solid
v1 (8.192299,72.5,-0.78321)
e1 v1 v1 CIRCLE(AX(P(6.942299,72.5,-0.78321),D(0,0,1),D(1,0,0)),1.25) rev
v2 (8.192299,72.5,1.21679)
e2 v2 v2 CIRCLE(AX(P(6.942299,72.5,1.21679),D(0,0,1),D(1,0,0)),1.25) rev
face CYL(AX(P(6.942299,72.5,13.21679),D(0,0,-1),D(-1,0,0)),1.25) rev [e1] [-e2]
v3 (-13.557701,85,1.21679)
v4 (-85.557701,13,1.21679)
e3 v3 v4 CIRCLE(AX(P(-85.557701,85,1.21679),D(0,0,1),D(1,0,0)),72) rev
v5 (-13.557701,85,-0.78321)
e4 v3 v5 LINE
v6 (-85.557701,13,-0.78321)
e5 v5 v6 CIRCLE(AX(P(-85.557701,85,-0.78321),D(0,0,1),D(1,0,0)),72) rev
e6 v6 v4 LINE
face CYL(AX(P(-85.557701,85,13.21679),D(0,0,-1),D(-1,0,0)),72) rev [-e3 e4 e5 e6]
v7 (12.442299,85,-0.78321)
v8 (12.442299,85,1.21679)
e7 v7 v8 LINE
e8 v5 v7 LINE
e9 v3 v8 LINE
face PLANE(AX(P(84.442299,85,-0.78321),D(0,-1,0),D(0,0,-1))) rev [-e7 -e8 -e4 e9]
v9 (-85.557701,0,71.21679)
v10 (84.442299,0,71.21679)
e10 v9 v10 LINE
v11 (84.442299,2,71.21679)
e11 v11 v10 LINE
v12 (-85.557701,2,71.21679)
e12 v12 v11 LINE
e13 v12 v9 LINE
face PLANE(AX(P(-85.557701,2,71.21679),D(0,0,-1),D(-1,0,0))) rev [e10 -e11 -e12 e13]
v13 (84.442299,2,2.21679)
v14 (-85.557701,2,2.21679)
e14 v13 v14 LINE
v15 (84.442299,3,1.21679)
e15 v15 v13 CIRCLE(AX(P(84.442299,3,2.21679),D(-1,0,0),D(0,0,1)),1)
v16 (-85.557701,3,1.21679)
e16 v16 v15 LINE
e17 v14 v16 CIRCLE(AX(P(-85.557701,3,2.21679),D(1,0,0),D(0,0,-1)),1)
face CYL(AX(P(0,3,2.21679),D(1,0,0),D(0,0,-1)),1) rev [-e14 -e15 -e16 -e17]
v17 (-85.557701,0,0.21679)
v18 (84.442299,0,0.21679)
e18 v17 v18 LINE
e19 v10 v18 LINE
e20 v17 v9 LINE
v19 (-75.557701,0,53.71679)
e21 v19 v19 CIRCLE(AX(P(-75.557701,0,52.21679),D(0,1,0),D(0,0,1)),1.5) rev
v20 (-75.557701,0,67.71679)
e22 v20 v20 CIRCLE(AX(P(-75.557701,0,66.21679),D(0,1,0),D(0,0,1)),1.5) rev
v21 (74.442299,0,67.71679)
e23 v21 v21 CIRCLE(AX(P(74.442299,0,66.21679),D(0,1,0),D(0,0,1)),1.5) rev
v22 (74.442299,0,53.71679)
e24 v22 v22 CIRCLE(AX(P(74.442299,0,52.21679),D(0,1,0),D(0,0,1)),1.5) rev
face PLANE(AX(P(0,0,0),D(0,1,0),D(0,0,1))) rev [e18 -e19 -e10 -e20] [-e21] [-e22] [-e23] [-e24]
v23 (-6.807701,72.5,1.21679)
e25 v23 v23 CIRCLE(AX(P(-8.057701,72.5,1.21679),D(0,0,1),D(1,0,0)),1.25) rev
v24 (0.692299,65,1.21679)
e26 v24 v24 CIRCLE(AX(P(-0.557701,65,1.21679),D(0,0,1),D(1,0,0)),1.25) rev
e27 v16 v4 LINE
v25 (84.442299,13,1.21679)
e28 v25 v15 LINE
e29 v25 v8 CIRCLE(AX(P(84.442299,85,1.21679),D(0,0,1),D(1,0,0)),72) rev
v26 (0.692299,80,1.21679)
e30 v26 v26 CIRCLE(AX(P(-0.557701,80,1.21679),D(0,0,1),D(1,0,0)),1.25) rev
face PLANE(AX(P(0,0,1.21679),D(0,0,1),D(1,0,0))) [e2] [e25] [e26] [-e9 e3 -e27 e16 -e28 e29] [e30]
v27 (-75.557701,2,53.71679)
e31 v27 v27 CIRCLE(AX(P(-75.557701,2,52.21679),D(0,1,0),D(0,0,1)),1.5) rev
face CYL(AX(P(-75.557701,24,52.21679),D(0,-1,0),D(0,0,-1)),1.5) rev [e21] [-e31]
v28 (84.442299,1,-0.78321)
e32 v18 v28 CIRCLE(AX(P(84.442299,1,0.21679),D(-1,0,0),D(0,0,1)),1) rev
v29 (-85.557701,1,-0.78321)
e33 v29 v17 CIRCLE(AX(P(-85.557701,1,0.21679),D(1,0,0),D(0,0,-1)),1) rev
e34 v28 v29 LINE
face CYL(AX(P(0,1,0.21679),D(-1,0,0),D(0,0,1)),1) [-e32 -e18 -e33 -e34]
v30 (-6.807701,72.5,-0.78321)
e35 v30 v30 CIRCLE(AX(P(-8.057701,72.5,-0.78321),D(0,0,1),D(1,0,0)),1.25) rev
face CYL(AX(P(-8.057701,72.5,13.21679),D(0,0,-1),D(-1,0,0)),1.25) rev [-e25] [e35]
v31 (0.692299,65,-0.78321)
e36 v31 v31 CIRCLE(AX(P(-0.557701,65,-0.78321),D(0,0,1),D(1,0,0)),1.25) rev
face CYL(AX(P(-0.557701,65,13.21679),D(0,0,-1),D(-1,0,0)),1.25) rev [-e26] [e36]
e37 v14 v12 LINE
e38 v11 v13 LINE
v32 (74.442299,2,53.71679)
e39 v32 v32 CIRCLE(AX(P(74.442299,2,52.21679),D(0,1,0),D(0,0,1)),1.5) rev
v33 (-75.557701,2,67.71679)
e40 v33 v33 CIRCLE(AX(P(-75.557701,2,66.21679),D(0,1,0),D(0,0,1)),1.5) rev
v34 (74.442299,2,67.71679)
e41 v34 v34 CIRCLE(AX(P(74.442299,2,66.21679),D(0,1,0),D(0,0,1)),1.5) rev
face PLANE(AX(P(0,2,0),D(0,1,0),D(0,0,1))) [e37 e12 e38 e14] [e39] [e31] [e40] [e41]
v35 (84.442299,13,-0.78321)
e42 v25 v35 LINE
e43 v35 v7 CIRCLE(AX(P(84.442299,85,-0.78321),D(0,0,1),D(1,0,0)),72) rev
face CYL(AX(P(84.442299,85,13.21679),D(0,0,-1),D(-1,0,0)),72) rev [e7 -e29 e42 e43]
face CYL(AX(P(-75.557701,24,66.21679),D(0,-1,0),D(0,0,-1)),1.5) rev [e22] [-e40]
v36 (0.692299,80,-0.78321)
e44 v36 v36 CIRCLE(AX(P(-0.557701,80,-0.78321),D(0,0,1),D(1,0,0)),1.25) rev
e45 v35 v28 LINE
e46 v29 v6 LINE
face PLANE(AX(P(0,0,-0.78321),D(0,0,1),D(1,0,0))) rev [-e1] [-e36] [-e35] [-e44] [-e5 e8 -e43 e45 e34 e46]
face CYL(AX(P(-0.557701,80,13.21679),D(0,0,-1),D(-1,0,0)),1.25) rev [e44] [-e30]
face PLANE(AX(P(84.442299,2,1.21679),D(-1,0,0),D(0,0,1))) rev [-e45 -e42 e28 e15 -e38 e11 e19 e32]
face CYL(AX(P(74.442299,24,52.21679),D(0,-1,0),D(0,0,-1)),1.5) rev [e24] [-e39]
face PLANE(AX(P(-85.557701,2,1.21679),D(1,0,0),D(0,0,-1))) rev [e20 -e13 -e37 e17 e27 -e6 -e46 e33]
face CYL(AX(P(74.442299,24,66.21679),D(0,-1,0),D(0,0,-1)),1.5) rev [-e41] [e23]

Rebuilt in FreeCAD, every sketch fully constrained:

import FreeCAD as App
import Part
import Sketcher

V = App.Vector


def edges_at(feature, points):
    """Names of the edges that pass closest to the given points."""
    edges = feature.Shape.Edges
    near = lambda p: min(range(len(edges)), key=lambda i: edges[i].distToShape(Part.Vertex(*p))[0])
    return sorted({f"Edge{near(p) + 1}" for p in points})


def add_polygon(sketch, points):
    """Adds a closed chain of lines whose ends are joined by coincident constraints."""
    first, n = sketch.GeometryCount, len(points)
    for a, b in zip(points, points[1:] + points[:1]):
        sketch.addGeometry(Part.LineSegment(App.Vector(*a, 0), App.Vector(*b, 0)), False)
    for i in range(n):
        sketch.addConstraint(Sketcher.Constraint("Coincident", first + i, 2, first + (i + 1) % n, 1))

doc = App.newDocument("Part")
body = doc.addObject("PartDesign::Body", "Body")

# Sketch on XZ plane
sketch1 = doc.addObject("Sketcher::SketchObject", "Sketch")
body.addObject(sketch1)
sketch1.AttachmentSupport = (doc.XZ_Plane, [""])
sketch1.MapMode = "FlatFace"
add_polygon(sketch1, [(-86, 1), (-86, 71), (84, 71), (84, 1)])  # lines 0-3
sketch1.addConstraint([
    Sketcher.Constraint("Vertical", 0),
    Sketcher.Constraint("Horizontal", 1),
    Sketcher.Constraint("Vertical", 2),
    Sketcher.Constraint("Horizontal", 3),
    Sketcher.Constraint("DistanceX", 1, 1, 1, 2, 170.0),
    Sketcher.Constraint("DistanceY", 0, 1, 0, 2, 70.0),
    Sketcher.Constraint("DistanceX", 0, 2, -1, 1, 85.557701),
    Sketcher.Constraint("DistanceY", -1, 1, 0, 2, 71.21679),
])
pad1 = doc.addObject("PartDesign::Pad", "Pad")
body.addObject(pad1)
pad1.Profile = sketch1
pad1.Length = 2
pad1.Reversed = True

# Sketch on XZ plane
sketch2 = doc.addObject("Sketcher::SketchObject", "Sketch001")
body.addObject(sketch2)
sketch2.AttachmentSupport = (doc.XZ_Plane, [""])
sketch2.MapMode = "FlatFace"
sketch2.AttachmentOffset = App.Placement(V(0, 0, -2), App.Rotation())
sketch2.addGeometry([
    Part.Circle(V(-75.6, 52.2, 0), V(0, 0, 1), 1.5),
    Part.Circle(V(-75.6, 66.2, 0), V(0, 0, 1), 1.5),
    Part.Circle(V(74.4, 52.2, 0), V(0, 0, 1), 1.5),
    Part.Circle(V(74.4, 66.2, 0), V(0, 0, 1), 1.5),
], False)
sketch2.addConstraint([
    Sketcher.Constraint("Equal", 0, 1),
    Sketcher.Constraint("Equal", 1, 2),
    Sketcher.Constraint("Equal", 2, 3),
    Sketcher.Constraint("Horizontal", 0, 3, 2, 3),
    Sketcher.Constraint("Horizontal", 1, 3, 3, 3),
    Sketcher.Constraint("Vertical", 0, 3, 1, 3),
    Sketcher.Constraint("Vertical", 2, 3, 3, 3),
    Sketcher.Constraint("Diameter", 0, 3.0),
    Sketcher.Constraint("DistanceY", 0, 3, 1, 3, 14.0),
    Sketcher.Constraint("DistanceX", 0, 3, 2, 3, 150.0),
    Sketcher.Constraint("DistanceX", 0, 3, -1, 1, 75.557701),
    Sketcher.Constraint("DistanceY", -1, 1, 0, 3, 52.21679),
])
pocket1 = doc.addObject("PartDesign::Pocket", "Pocket")
body.addObject(pocket1)
pocket1.Profile = sketch2
pocket1.Type = "ThroughAll"
pocket1.Midplane = True

# Sketch on XY plane
sketch3 = doc.addObject("Sketcher::SketchObject", "Sketch002")
body.addObject(sketch3)
sketch3.AttachmentSupport = (doc.XY_Plane, [""])
sketch3.MapMode = "FlatFace"
sketch3.AttachmentOffset = App.Placement(V(0, 0, 1.21679), App.Rotation())
add_polygon(sketch3, [(84, 85), (84, 0), (-86, 0), (-86, 85)])  # lines 0-3
sketch3.addConstraint([
    Sketcher.Constraint("Vertical", 0),
    Sketcher.Constraint("Horizontal", 1),
    Sketcher.Constraint("Vertical", 2),
    Sketcher.Constraint("Horizontal", 3),
    Sketcher.Constraint("PointOnObject", 0, 2, -1),
    Sketcher.Constraint("DistanceX", 1, 2, 1, 1, 170.0),
    Sketcher.Constraint("DistanceY", 0, 2, 0, 1, 85.0),
    Sketcher.Constraint("DistanceX", -1, 1, 0, 2, 84.442299),
])
pad2 = doc.addObject("PartDesign::Pad", "Pad001")
body.addObject(pad2)
pad2.Profile = sketch3
pad2.Length = 2
pad2.Reversed = True
doc.recompute()

fillet = doc.addObject("PartDesign::Fillet", "Fillet")
body.addObject(fillet)
fillet.Base = (pad2, edges_at(pad2, [(-0.558, 0, -0.783)]))
fillet.Radius = 1
doc.recompute()

fillet2 = doc.addObject("PartDesign::Fillet", "Fillet001")
body.addObject(fillet2)
fillet2.Base = (fillet, edges_at(fillet, [(-0.558, 2, 1.217)]))
fillet2.Radius = 1

# Sketch on XY plane
sketch4 = doc.addObject("Sketcher::SketchObject", "Sketch003")
body.addObject(sketch4)
sketch4.AttachmentSupport = (doc.XY_Plane, [""])
sketch4.MapMode = "FlatFace"
sketch4.AttachmentOffset = App.Placement(V(0, 0, 1.21679), App.Rotation())
sketch4.addGeometry([
    Part.Circle(V(-0.6, 80, 0), V(0, 0, 1), 1.2),
    Part.Circle(V(-0.6, 65, 0), V(0, 0, 1), 1.2),
    Part.Circle(V(6.9, 72.5, 0), V(0, 0, 1), 1.2),
    Part.Circle(V(-8.1, 72.5, 0), V(0, 0, 1), 1.2),
], False)
sketch4.addConstraint([
    Sketcher.Constraint("Equal", 0, 1),
    Sketcher.Constraint("Equal", 1, 2),
    Sketcher.Constraint("Equal", 2, 3),
    Sketcher.Constraint("Horizontal", 2, 3, 3, 3),
    Sketcher.Constraint("Vertical", 0, 3, 1, 3),
    Sketcher.Constraint("Diameter", 0, 2.5),
    Sketcher.Constraint("DistanceY", -1, 1, 0, 3, 80.0),
    Sketcher.Constraint("DistanceY", -1, 1, 1, 3, 65.0),
    Sketcher.Constraint("DistanceX", 3, 3, 2, 3, 15.0),
    Sketcher.Constraint("DistanceY", -1, 1, 2, 3, 72.5),
    Sketcher.Constraint("DistanceX", 0, 3, 2, 3, 7.5),
    Sketcher.Constraint("DistanceX", 0, 3, -1, 1, 0.557701),
])
pocket2 = doc.addObject("PartDesign::Pocket", "Pocket001")
body.addObject(pocket2)
pocket2.Profile = sketch4
pocket2.Type = "ThroughAll"
pocket2.Midplane = True

# Sketch on XY plane
sketch5 = doc.addObject("Sketcher::SketchObject", "Sketch004")
body.addObject(sketch5)
sketch5.AttachmentSupport = (doc.XY_Plane, [""])
sketch5.MapMode = "FlatFace"
sketch5.AttachmentOffset = App.Placement(V(0, 0, 1.21679), App.Rotation())
sketch5.addGeometry([
    Part.Circle(V(-86, 85, 0), V(0, 0, 1), 72),
    Part.Circle(V(84, 85, 0), V(0, 0, 1), 72),
], False)
sketch5.addConstraint([
    Sketcher.Constraint("Equal", 0, 1),
    Sketcher.Constraint("Horizontal", 0, 3, 1, 3),
    Sketcher.Constraint("Diameter", 0, 144.0),
    Sketcher.Constraint("DistanceY", -1, 1, 0, 3, 85.0),
    Sketcher.Constraint("DistanceX", 0, 3, 1, 3, 170.0),
    Sketcher.Constraint("DistanceX", 0, 3, -1, 1, 85.557701),
])
pocket3 = doc.addObject("PartDesign::Pocket", "Pocket002")
body.addObject(pocket3)
pocket3.Profile = sketch5
pocket3.Type = "ThroughAll"
pocket3.Midplane = True

doc.recompute()
